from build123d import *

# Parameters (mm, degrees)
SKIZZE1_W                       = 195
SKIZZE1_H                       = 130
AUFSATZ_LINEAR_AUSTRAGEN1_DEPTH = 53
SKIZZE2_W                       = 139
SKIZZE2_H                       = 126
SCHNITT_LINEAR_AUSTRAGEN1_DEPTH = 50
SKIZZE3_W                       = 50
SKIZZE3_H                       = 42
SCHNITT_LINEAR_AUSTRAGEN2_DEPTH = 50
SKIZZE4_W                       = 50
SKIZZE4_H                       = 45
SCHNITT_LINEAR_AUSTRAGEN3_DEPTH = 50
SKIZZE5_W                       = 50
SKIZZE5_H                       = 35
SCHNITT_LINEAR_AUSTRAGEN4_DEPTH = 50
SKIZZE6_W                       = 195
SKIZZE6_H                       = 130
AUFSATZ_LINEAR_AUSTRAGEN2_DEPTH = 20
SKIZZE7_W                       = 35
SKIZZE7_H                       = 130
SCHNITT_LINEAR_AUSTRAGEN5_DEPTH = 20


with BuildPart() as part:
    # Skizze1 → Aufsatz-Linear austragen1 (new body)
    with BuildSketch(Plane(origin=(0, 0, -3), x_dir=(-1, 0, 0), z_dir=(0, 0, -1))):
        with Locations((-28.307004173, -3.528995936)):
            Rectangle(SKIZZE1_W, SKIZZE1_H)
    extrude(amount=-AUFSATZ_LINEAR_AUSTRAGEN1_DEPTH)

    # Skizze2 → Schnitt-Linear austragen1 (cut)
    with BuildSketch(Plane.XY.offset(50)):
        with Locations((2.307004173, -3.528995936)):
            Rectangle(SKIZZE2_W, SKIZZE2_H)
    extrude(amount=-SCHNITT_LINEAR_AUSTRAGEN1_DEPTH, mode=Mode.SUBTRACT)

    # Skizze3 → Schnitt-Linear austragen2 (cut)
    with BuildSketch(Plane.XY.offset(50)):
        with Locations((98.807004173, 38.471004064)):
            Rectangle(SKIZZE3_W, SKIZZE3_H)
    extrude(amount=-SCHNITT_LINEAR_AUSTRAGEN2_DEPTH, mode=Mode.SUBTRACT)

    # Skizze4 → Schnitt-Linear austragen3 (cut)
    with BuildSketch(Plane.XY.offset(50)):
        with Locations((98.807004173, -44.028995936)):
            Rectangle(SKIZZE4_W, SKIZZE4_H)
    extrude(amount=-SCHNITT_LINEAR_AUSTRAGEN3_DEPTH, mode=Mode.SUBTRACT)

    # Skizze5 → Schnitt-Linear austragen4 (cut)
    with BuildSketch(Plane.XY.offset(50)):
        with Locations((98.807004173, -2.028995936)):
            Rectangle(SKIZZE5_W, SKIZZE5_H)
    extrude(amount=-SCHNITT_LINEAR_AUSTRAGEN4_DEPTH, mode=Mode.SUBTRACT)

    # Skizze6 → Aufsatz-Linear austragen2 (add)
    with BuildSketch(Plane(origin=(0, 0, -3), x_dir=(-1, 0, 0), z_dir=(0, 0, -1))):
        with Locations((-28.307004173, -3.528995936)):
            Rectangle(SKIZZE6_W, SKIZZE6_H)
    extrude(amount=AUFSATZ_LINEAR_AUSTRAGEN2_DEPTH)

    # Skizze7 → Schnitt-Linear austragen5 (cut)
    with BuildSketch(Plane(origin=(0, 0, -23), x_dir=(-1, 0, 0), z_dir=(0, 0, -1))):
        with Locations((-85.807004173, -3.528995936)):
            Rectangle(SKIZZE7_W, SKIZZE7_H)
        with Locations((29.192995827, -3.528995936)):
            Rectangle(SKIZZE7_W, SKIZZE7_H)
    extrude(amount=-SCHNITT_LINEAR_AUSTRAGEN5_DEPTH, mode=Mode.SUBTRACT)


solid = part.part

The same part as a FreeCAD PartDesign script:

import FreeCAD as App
import Part
import Sketcher
Q = App.Units.Quantity


def add_polygon(sketch, points):
    """Adds a closed chain of lines whose ends are joined by coincident constraints."""
    first, n = sketch.GeometryCount, len(points)
    for a, b in zip(points, points[1:] + points[:1]):
        sketch.addGeometry(Part.LineSegment(App.Vector(*a, 0), App.Vector(*b, 0)), False)
    for i in range(n):
        sketch.addConstraint(Sketcher.Constraint("Coincident", first + i, 2, first + (i + 1) % n, 1))

doc = App.newDocument("Part")
body = doc.addObject("PartDesign::Body", "Body")

# Sketch on XY plane
sketch1 = body.newObject("Sketcher::SketchObject", "Sketch")
sketch1.AttachmentSupport = (doc.getObject("XY_Plane"), [""])
sketch1.MapMode = "FlatFace"
sketch1.AttachmentOffset = App.Placement(App.Vector(0, 0, -3), App.Rotation())
add_polygon(sketch1, [(125.807004, 61.471004), (125.807004, -68.528996), (-69.192996, -68.528996), (-69.192996, 61.471004)])  # lines 0-3
sketch1.addConstraint(Sketcher.Constraint("Vertical", 0))
sketch1.addConstraint(Sketcher.Constraint("Horizontal", 1))
sketch1.addConstraint(Sketcher.Constraint("Vertical", 2))
sketch1.addConstraint(Sketcher.Constraint("Horizontal", 3))
sketch1.addConstraint(Sketcher.Constraint("DistanceX", 1, 2, 1, 1, Q("195 mm")))
sketch1.addConstraint(Sketcher.Constraint("DistanceY", 0, 2, 0, 1, Q("130 mm")))
sketch1.addConstraint(Sketcher.Constraint("DistanceX", -1, 1, 0, 2, Q("125.807004 mm")))
sketch1.addConstraint(Sketcher.Constraint("DistanceY", 0, 2, -1, 1, Q("68.528996 mm")))
pad1 = body.newObject("PartDesign::Pad", "Pad")
pad1.Profile = sketch1
pad1.Length = 53

# Sketch on XY plane
sketch2 = body.newObject("Sketcher::SketchObject", "Sketch001")
sketch2.AttachmentSupport = (doc.getObject("XY_Plane"), [""])
sketch2.MapMode = "FlatFace"
sketch2.AttachmentOffset = App.Placement(App.Vector(0, 0, 50), App.Rotation())
add_polygon(sketch2, [(-67.192996, 59.471004), (-67.192996, -66.528996), (71.807004, -66.528996), (71.807004, 59.471004)])  # lines 0-3
sketch2.addConstraint(Sketcher.Constraint("Vertical", 0))
sketch2.addConstraint(Sketcher.Constraint("Horizontal", 1))
sketch2.addConstraint(Sketcher.Constraint("Vertical", 2))
sketch2.addConstraint(Sketcher.Constraint("Horizontal", 3))
sketch2.addConstraint(Sketcher.Constraint("DistanceX", 1, 1, 1, 2, Q("139 mm")))
sketch2.addConstraint(Sketcher.Constraint("DistanceY", 0, 2, 0, 1, Q("126 mm")))
sketch2.addConstraint(Sketcher.Constraint("DistanceX", 0, 2, -1, 1, Q("67.192996 mm")))
sketch2.addConstraint(Sketcher.Constraint("DistanceY", 0, 2, -1, 1, Q("66.528996 mm")))
pocket1 = body.newObject("PartDesign::Pocket", "Pocket")
pocket1.Profile = sketch2
pocket1.Length = 50

# Sketch on XY plane
sketch3 = body.newObject("Sketcher::SketchObject", "Sketch002")
sketch3.AttachmentSupport = (doc.getObject("XY_Plane"), [""])
sketch3.MapMode = "FlatFace"
sketch3.AttachmentOffset = App.Placement(App.Vector(0, 0, 50), App.Rotation())
add_polygon(sketch3, [(73.807004, 59.471004), (73.807004, 17.471004), (123.807004, 17.471004), (123.807004, 59.471004)])  # lines 0-3
sketch3.addConstraint(Sketcher.Constraint("Vertical", 0))
sketch3.addConstraint(Sketcher.Constraint("Horizontal", 1))
sketch3.addConstraint(Sketcher.Constraint("Vertical", 2))
sketch3.addConstraint(Sketcher.Constraint("Horizontal", 3))
sketch3.addConstraint(Sketcher.Constraint("DistanceX", 1, 1, 1, 2, Q("50 mm")))
sketch3.addConstraint(Sketcher.Constraint("DistanceY", 0, 2, 0, 1, Q("42 mm")))
sketch3.addConstraint(Sketcher.Constraint("DistanceX", -1, 1, 0, 2, Q("73.807004 mm")))
sketch3.addConstraint(Sketcher.Constraint("DistanceY", -1, 1, 0, 2, Q("17.471004 mm")))
pocket2 = body.newObject("PartDesign::Pocket", "Pocket001")
pocket2.Profile = sketch3
pocket2.Length = 50

# Sketch on XY plane
sketch4 = body.newObject("Sketcher::SketchObject", "Sketch003")
sketch4.AttachmentSupport = (doc.getObject("XY_Plane"), [""])
sketch4.MapMode = "FlatFace"
sketch4.AttachmentOffset = App.Placement(App.Vector(0, 0, 50), App.Rotation())
add_polygon(sketch4, [(73.807004, -21.528996), (73.807004, -66.528996), (123.807004, -66.528996), (123.807004, -21.528996)])  # lines 0-3
sketch4.addConstraint(Sketcher.Constraint("Vertical", 0))
sketch4.addConstraint(Sketcher.Constraint("Horizontal", 1))
sketch4.addConstraint(Sketcher.Constraint("Vertical", 2))
sketch4.addConstraint(Sketcher.Constraint("Horizontal", 3))
sketch4.addConstraint(Sketcher.Constraint("DistanceX", 1, 1, 1, 2, Q("50 mm")))
sketch4.addConstraint(Sketcher.Constraint("DistanceY", 0, 2, 0, 1, Q("45 mm")))
sketch4.addConstraint(Sketcher.Constraint("DistanceX", -1, 1, 0, 2, Q("73.807004 mm")))
sketch4.addConstraint(Sketcher.Constraint("DistanceY", 0, 2, -1, 1, Q("66.528996 mm")))
pocket3 = body.newObject("PartDesign::Pocket", "Pocket002")
pocket3.Profile = sketch4
pocket3.Length = 50

# Sketch on XY plane
sketch5 = body.newObject("Sketcher::SketchObject", "Sketch004")
sketch5.AttachmentSupport = (doc.getObject("XY_Plane"), [""])
sketch5.MapMode = "FlatFace"
sketch5.AttachmentOffset = App.Placement(App.Vector(0, 0, 50), App.Rotation())
add_polygon(sketch5, [(73.807004, 15.471004), (73.807004, -19.528996), (123.807004, -19.528996), (123.807004, 15.471004)])  # lines 0-3
sketch5.addConstraint(Sketcher.Constraint("Vertical", 0))
sketch5.addConstraint(Sketcher.Constraint("Horizontal", 1))
sketch5.addConstraint(Sketcher.Constraint("Vertical", 2))
sketch5.addConstraint(Sketcher.Constraint("Horizontal", 3))
sketch5.addConstraint(Sketcher.Constraint("DistanceX", 1, 1, 1, 2, Q("50 mm")))
sketch5.addConstraint(Sketcher.Constraint("DistanceY", 0, 2, 0, 1, Q("35 mm")))
sketch5.addConstraint(Sketcher.Constraint("DistanceX", -1, 1, 0, 2, Q("73.807004 mm")))
sketch5.addConstraint(Sketcher.Constraint("DistanceY", 0, 2, -1, 1, Q("19.528996 mm")))
pocket4 = body.newObject("PartDesign::Pocket", "Pocket003")
pocket4.Profile = sketch5
pocket4.Length = 50

# Sketch on XY plane
sketch6 = body.newObject("Sketcher::SketchObject", "Sketch005")
sketch6.AttachmentSupport = (doc.getObject("XY_Plane"), [""])
sketch6.MapMode = "FlatFace"
sketch6.AttachmentOffset = App.Placement(App.Vector(0, 0, -3), App.Rotation())
add_polygon(sketch6, [(125.807004, 61.471004), (125.807004, -68.528996), (-69.192996, -68.528996), (-69.192996, 61.471004)])  # lines 0-3
sketch6.addConstraint(Sketcher.Constraint("Vertical", 0))
sketch6.addConstraint(Sketcher.Constraint("Horizontal", 1))
sketch6.addConstraint(Sketcher.Constraint("Vertical", 2))
sketch6.addConstraint(Sketcher.Constraint("Horizontal", 3))
sketch6.addConstraint(Sketcher.Constraint("DistanceX", 1, 2, 1, 1, Q("195 mm")))
sketch6.addConstraint(Sketcher.Constraint("DistanceY", 0, 2, 0, 1, Q("130 mm")))
sketch6.addConstraint(Sketcher.Constraint("DistanceX", -1, 1, 0, 2, Q("125.807004 mm")))
sketch6.addConstraint(Sketcher.Constraint("DistanceY", 0, 2, -1, 1, Q("68.528996 mm")))
pad2 = body.newObject("PartDesign::Pad", "Pad001")
pad2.Profile = sketch6
pad2.Length = 20
pad2.Reversed = True

# Sketch on XY plane
sketch7 = body.newObject("Sketcher::SketchObject", "Sketch006")
sketch7.AttachmentSupport = (doc.getObject("XY_Plane"), [""])
sketch7.MapMode = "FlatFace"
sketch7.AttachmentOffset = App.Placement(App.Vector(0, 0, -23), App.Rotation())
add_polygon(sketch7, [(103.307004, 61.471004), (103.307004, -68.528996), (68.307004, -68.528996), (68.307004, 61.471004)])  # lines 0-3
add_polygon(sketch7, [(-11.692996, 61.471004), (-11.692996, -68.528996), (-46.692996, -68.528996), (-46.692996, 61.471004)])  # lines 4-7
sketch7.addConstraint(Sketcher.Constraint("Vertical", 0))
sketch7.addConstraint(Sketcher.Constraint("Horizontal", 1))
sketch7.addConstraint(Sketcher.Constraint("Vertical", 2))
sketch7.addConstraint(Sketcher.Constraint("Horizontal", 3))
sketch7.addConstraint(Sketcher.Constraint("Vertical", 4))
sketch7.addConstraint(Sketcher.Constraint("Horizontal", 5))
sketch7.addConstraint(Sketcher.Constraint("Vertical", 6))
sketch7.addConstraint(Sketcher.Constraint("Horizontal", 7))
sketch7.addConstraint(Sketcher.Constraint("Horizontal", 1, 2, 4, 2))
sketch7.addConstraint(Sketcher.Constraint("Horizontal", 3, 2, 6, 2))
sketch7.addConstraint(Sketcher.Constraint("Equal", 3, 5))
sketch7.addConstraint(Sketcher.Constraint("DistanceX", 1, 2, 1, 1, Q("35 mm")))
sketch7.addConstraint(Sketcher.Constraint("DistanceY", 0, 2, 0, 1, Q("130 mm")))
sketch7.addConstraint(Sketcher.Constraint("DistanceX", 4, 2, 1, 2, Q("80 mm")))
sketch7.addConstraint(Sketcher.Constraint("DistanceX", -1, 1, 0, 2, Q("103.307004 mm")))
sketch7.addConstraint(Sketcher.Constraint("DistanceY", 0, 2, -1, 1, Q("68.528996 mm")))
pocket5 = body.newObject("PartDesign::Pocket", "Pocket004")
pocket5.Profile = sketch7
pocket5.Length = 20
pocket5.Reversed = True

doc.recompute()
